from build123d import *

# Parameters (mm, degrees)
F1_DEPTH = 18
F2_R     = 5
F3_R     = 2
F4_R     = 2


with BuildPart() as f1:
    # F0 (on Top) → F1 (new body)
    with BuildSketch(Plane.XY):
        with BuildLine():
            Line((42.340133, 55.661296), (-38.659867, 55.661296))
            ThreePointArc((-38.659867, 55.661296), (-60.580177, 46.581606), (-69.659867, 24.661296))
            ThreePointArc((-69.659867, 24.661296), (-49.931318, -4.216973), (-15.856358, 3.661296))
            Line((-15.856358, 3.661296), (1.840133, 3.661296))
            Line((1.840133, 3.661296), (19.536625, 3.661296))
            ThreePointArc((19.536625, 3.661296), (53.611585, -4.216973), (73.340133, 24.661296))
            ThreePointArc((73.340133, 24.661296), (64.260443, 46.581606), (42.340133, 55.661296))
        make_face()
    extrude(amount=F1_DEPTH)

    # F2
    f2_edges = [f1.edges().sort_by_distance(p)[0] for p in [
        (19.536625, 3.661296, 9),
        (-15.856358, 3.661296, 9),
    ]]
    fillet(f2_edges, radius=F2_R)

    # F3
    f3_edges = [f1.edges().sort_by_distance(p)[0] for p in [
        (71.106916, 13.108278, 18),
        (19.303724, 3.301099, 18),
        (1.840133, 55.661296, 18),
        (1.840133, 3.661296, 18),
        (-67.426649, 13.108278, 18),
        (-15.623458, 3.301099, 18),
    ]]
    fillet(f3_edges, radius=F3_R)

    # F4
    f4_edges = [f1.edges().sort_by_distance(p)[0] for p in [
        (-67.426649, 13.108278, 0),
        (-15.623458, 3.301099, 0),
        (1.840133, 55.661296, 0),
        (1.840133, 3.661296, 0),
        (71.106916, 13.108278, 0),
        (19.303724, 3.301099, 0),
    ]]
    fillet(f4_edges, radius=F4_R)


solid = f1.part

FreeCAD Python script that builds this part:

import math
import FreeCAD as App
import Part
import Sketcher
from FreeCAD import Vector


def edges_at(feature, points):
    """Names of the edges that pass closest to the given points."""
    edges = feature.Shape.Edges
    near = lambda p: min(range(len(edges)), key=lambda i: edges[i].distToShape(Part.Vertex(*p))[0])
    return sorted({f"Edge{near(p) + 1}" for p in points})

doc = App.newDocument("Part")
params = doc.addObject("Spreadsheet::Sheet", "Params")
for row, (alias, value) in enumerate([
    ("sketch1_radius", "31.000001 mm"),
    ("sketch1_width", "81 mm"),
    ("pad1_length", "18 mm"),
    ("fillet_radius", "5 mm"),
    ("fillet2_radius", "2 mm"),
    ("fillet3_radius", "2 mm"),
], start=1):
    params.set(f"A{row}", alias)
    params.set(f"B{row}", "=" + value)
    params.setAlias(f"B{row}", alias)

body = doc.addObject("PartDesign::Body", "Body")

sketch1 = body.newObject("Sketcher::SketchObject", "Sketch")
sketch1.AttachmentSupport = (doc.getObject("XY_Plane"), [""])
sketch1.MapMode = "FlatFace"
sketch1.addGeometry(Part.LineSegment(Vector(42, 56, 0), Vector(-39, 56, 0)), False)
sketch1.addGeometry(Part.ArcOfCircle(Part.Circle(Vector(-39, 25, 0), Vector(0, 0, 1), 31), math.radians(90), math.radians(180)), False)
sketch1.addGeometry(Part.ArcOfCircle(Part.Circle(Vector(-39, 25, 0), Vector(0, 0, 1), 31), math.radians(180), math.radians(317)), False)
sketch1.addGeometry(Part.LineSegment(Vector(-16, 4, 0), Vector(20, 4, 0)), False)
sketch1.addGeometry(Part.ArcOfCircle(Part.Circle(Vector(42, 25, 0), Vector(0, 0, 1), 31), math.radians(-137), math.radians(0)), False)
sketch1.addGeometry(Part.ArcOfCircle(Part.Circle(Vector(42, 25, 0), Vector(0, 0, 1), 31), math.radians(0), math.radians(90)), False)
sketch1.addConstraint(Sketcher.Constraint("Tangent", 0, 2, 1, 1))
sketch1.addConstraint(Sketcher.Constraint("Tangent", 1, 2, 2, 1))
sketch1.addConstraint(Sketcher.Constraint("Coincident", 2, 2, 3, 1))
sketch1.addConstraint(Sketcher.Constraint("Coincident", 3, 2, 4, 1))
sketch1.addConstraint(Sketcher.Constraint("Tangent", 4, 2, 5, 1))
sketch1.addConstraint(Sketcher.Constraint("Tangent", 5, 2, 0, 1))
sketch1.addConstraint(Sketcher.Constraint("Horizontal", 0))
sketch1.addConstraint(Sketcher.Constraint("Horizontal", 3))
sketch1.addConstraint(Sketcher.Constraint("Equal", 1, 2))
sketch1.addConstraint(Sketcher.Constraint("Equal", 2, 4))
sketch1.addConstraint(Sketcher.Constraint("Equal", 4, 5))
sketch1.addConstraint(Sketcher.Constraint("Horizontal", 5, 3, 1, 2))
sketch1.addConstraint(Sketcher.Constraint("Horizontal", 1, 2, 4, 2))
sketch1.addConstraint(Sketcher.Constraint("Radius", 1, 31.000001))
sketch1.addConstraint(Sketcher.Constraint("DistanceX", 0, 2, 0, 1, 81.0))
sketch1.addConstraint(Sketcher.Constraint("DistanceY", 2, 2, 1, 3, 20.999999))
sketch1.addConstraint(Sketcher.Constraint("DistanceX", 2, 2, -1, 1, 15.856358))
sketch1.addConstraint(Sketcher.Constraint("DistanceY", -1, 1, 1, 3, 24.661295))
sketch1.setExpression("Constraints[13]", "Params.sketch1_radius")
sketch1.setExpression("Constraints[14]", "Params.sketch1_width")
pad1 = body.newObject("PartDesign::Pad", "Pad")
pad1.Profile = sketch1
pad1.setExpression("Length", "Params.pad1_length")
doc.recompute()

fillet = body.newObject("PartDesign::Fillet", "Fillet")
fillet.Base = (pad1, edges_at(pad1, [(19.537, 3.661, 9), (-15.856, 3.661, 9)]))
fillet.setExpression("Radius", "Params.fillet_radius")
doc.recompute()

fillet2 = body.newObject("PartDesign::Fillet", "Fillet001")
fillet2.Base = (fillet, edges_at(fillet, [
    (54.512, -3.849, 18),
    (19.304, 3.301, 18),
    (1.84, 55.661, 18),
    (1.84, 3.661, 18),
    (-50.832, -3.849, 18),
    (-15.623, 3.301, 18),
]))
fillet2.setExpression("Radius", "Params.fillet2_radius")
doc.recompute()

fillet3 = body.newObject("PartDesign::Fillet", "Fillet002")
fillet3.Base = (fillet2, edges_at(fillet2, [
    (-50.832, -3.849, 0),
    (-15.623, 3.301, 0),
    (1.84, 55.661, 0),
    (1.84, 3.661, 0),
    (54.512, -3.849, 0),
    (19.304, 3.301, 0),
]))
fillet3.setExpression("Radius", "Params.fillet3_radius")

doc.recompute()
